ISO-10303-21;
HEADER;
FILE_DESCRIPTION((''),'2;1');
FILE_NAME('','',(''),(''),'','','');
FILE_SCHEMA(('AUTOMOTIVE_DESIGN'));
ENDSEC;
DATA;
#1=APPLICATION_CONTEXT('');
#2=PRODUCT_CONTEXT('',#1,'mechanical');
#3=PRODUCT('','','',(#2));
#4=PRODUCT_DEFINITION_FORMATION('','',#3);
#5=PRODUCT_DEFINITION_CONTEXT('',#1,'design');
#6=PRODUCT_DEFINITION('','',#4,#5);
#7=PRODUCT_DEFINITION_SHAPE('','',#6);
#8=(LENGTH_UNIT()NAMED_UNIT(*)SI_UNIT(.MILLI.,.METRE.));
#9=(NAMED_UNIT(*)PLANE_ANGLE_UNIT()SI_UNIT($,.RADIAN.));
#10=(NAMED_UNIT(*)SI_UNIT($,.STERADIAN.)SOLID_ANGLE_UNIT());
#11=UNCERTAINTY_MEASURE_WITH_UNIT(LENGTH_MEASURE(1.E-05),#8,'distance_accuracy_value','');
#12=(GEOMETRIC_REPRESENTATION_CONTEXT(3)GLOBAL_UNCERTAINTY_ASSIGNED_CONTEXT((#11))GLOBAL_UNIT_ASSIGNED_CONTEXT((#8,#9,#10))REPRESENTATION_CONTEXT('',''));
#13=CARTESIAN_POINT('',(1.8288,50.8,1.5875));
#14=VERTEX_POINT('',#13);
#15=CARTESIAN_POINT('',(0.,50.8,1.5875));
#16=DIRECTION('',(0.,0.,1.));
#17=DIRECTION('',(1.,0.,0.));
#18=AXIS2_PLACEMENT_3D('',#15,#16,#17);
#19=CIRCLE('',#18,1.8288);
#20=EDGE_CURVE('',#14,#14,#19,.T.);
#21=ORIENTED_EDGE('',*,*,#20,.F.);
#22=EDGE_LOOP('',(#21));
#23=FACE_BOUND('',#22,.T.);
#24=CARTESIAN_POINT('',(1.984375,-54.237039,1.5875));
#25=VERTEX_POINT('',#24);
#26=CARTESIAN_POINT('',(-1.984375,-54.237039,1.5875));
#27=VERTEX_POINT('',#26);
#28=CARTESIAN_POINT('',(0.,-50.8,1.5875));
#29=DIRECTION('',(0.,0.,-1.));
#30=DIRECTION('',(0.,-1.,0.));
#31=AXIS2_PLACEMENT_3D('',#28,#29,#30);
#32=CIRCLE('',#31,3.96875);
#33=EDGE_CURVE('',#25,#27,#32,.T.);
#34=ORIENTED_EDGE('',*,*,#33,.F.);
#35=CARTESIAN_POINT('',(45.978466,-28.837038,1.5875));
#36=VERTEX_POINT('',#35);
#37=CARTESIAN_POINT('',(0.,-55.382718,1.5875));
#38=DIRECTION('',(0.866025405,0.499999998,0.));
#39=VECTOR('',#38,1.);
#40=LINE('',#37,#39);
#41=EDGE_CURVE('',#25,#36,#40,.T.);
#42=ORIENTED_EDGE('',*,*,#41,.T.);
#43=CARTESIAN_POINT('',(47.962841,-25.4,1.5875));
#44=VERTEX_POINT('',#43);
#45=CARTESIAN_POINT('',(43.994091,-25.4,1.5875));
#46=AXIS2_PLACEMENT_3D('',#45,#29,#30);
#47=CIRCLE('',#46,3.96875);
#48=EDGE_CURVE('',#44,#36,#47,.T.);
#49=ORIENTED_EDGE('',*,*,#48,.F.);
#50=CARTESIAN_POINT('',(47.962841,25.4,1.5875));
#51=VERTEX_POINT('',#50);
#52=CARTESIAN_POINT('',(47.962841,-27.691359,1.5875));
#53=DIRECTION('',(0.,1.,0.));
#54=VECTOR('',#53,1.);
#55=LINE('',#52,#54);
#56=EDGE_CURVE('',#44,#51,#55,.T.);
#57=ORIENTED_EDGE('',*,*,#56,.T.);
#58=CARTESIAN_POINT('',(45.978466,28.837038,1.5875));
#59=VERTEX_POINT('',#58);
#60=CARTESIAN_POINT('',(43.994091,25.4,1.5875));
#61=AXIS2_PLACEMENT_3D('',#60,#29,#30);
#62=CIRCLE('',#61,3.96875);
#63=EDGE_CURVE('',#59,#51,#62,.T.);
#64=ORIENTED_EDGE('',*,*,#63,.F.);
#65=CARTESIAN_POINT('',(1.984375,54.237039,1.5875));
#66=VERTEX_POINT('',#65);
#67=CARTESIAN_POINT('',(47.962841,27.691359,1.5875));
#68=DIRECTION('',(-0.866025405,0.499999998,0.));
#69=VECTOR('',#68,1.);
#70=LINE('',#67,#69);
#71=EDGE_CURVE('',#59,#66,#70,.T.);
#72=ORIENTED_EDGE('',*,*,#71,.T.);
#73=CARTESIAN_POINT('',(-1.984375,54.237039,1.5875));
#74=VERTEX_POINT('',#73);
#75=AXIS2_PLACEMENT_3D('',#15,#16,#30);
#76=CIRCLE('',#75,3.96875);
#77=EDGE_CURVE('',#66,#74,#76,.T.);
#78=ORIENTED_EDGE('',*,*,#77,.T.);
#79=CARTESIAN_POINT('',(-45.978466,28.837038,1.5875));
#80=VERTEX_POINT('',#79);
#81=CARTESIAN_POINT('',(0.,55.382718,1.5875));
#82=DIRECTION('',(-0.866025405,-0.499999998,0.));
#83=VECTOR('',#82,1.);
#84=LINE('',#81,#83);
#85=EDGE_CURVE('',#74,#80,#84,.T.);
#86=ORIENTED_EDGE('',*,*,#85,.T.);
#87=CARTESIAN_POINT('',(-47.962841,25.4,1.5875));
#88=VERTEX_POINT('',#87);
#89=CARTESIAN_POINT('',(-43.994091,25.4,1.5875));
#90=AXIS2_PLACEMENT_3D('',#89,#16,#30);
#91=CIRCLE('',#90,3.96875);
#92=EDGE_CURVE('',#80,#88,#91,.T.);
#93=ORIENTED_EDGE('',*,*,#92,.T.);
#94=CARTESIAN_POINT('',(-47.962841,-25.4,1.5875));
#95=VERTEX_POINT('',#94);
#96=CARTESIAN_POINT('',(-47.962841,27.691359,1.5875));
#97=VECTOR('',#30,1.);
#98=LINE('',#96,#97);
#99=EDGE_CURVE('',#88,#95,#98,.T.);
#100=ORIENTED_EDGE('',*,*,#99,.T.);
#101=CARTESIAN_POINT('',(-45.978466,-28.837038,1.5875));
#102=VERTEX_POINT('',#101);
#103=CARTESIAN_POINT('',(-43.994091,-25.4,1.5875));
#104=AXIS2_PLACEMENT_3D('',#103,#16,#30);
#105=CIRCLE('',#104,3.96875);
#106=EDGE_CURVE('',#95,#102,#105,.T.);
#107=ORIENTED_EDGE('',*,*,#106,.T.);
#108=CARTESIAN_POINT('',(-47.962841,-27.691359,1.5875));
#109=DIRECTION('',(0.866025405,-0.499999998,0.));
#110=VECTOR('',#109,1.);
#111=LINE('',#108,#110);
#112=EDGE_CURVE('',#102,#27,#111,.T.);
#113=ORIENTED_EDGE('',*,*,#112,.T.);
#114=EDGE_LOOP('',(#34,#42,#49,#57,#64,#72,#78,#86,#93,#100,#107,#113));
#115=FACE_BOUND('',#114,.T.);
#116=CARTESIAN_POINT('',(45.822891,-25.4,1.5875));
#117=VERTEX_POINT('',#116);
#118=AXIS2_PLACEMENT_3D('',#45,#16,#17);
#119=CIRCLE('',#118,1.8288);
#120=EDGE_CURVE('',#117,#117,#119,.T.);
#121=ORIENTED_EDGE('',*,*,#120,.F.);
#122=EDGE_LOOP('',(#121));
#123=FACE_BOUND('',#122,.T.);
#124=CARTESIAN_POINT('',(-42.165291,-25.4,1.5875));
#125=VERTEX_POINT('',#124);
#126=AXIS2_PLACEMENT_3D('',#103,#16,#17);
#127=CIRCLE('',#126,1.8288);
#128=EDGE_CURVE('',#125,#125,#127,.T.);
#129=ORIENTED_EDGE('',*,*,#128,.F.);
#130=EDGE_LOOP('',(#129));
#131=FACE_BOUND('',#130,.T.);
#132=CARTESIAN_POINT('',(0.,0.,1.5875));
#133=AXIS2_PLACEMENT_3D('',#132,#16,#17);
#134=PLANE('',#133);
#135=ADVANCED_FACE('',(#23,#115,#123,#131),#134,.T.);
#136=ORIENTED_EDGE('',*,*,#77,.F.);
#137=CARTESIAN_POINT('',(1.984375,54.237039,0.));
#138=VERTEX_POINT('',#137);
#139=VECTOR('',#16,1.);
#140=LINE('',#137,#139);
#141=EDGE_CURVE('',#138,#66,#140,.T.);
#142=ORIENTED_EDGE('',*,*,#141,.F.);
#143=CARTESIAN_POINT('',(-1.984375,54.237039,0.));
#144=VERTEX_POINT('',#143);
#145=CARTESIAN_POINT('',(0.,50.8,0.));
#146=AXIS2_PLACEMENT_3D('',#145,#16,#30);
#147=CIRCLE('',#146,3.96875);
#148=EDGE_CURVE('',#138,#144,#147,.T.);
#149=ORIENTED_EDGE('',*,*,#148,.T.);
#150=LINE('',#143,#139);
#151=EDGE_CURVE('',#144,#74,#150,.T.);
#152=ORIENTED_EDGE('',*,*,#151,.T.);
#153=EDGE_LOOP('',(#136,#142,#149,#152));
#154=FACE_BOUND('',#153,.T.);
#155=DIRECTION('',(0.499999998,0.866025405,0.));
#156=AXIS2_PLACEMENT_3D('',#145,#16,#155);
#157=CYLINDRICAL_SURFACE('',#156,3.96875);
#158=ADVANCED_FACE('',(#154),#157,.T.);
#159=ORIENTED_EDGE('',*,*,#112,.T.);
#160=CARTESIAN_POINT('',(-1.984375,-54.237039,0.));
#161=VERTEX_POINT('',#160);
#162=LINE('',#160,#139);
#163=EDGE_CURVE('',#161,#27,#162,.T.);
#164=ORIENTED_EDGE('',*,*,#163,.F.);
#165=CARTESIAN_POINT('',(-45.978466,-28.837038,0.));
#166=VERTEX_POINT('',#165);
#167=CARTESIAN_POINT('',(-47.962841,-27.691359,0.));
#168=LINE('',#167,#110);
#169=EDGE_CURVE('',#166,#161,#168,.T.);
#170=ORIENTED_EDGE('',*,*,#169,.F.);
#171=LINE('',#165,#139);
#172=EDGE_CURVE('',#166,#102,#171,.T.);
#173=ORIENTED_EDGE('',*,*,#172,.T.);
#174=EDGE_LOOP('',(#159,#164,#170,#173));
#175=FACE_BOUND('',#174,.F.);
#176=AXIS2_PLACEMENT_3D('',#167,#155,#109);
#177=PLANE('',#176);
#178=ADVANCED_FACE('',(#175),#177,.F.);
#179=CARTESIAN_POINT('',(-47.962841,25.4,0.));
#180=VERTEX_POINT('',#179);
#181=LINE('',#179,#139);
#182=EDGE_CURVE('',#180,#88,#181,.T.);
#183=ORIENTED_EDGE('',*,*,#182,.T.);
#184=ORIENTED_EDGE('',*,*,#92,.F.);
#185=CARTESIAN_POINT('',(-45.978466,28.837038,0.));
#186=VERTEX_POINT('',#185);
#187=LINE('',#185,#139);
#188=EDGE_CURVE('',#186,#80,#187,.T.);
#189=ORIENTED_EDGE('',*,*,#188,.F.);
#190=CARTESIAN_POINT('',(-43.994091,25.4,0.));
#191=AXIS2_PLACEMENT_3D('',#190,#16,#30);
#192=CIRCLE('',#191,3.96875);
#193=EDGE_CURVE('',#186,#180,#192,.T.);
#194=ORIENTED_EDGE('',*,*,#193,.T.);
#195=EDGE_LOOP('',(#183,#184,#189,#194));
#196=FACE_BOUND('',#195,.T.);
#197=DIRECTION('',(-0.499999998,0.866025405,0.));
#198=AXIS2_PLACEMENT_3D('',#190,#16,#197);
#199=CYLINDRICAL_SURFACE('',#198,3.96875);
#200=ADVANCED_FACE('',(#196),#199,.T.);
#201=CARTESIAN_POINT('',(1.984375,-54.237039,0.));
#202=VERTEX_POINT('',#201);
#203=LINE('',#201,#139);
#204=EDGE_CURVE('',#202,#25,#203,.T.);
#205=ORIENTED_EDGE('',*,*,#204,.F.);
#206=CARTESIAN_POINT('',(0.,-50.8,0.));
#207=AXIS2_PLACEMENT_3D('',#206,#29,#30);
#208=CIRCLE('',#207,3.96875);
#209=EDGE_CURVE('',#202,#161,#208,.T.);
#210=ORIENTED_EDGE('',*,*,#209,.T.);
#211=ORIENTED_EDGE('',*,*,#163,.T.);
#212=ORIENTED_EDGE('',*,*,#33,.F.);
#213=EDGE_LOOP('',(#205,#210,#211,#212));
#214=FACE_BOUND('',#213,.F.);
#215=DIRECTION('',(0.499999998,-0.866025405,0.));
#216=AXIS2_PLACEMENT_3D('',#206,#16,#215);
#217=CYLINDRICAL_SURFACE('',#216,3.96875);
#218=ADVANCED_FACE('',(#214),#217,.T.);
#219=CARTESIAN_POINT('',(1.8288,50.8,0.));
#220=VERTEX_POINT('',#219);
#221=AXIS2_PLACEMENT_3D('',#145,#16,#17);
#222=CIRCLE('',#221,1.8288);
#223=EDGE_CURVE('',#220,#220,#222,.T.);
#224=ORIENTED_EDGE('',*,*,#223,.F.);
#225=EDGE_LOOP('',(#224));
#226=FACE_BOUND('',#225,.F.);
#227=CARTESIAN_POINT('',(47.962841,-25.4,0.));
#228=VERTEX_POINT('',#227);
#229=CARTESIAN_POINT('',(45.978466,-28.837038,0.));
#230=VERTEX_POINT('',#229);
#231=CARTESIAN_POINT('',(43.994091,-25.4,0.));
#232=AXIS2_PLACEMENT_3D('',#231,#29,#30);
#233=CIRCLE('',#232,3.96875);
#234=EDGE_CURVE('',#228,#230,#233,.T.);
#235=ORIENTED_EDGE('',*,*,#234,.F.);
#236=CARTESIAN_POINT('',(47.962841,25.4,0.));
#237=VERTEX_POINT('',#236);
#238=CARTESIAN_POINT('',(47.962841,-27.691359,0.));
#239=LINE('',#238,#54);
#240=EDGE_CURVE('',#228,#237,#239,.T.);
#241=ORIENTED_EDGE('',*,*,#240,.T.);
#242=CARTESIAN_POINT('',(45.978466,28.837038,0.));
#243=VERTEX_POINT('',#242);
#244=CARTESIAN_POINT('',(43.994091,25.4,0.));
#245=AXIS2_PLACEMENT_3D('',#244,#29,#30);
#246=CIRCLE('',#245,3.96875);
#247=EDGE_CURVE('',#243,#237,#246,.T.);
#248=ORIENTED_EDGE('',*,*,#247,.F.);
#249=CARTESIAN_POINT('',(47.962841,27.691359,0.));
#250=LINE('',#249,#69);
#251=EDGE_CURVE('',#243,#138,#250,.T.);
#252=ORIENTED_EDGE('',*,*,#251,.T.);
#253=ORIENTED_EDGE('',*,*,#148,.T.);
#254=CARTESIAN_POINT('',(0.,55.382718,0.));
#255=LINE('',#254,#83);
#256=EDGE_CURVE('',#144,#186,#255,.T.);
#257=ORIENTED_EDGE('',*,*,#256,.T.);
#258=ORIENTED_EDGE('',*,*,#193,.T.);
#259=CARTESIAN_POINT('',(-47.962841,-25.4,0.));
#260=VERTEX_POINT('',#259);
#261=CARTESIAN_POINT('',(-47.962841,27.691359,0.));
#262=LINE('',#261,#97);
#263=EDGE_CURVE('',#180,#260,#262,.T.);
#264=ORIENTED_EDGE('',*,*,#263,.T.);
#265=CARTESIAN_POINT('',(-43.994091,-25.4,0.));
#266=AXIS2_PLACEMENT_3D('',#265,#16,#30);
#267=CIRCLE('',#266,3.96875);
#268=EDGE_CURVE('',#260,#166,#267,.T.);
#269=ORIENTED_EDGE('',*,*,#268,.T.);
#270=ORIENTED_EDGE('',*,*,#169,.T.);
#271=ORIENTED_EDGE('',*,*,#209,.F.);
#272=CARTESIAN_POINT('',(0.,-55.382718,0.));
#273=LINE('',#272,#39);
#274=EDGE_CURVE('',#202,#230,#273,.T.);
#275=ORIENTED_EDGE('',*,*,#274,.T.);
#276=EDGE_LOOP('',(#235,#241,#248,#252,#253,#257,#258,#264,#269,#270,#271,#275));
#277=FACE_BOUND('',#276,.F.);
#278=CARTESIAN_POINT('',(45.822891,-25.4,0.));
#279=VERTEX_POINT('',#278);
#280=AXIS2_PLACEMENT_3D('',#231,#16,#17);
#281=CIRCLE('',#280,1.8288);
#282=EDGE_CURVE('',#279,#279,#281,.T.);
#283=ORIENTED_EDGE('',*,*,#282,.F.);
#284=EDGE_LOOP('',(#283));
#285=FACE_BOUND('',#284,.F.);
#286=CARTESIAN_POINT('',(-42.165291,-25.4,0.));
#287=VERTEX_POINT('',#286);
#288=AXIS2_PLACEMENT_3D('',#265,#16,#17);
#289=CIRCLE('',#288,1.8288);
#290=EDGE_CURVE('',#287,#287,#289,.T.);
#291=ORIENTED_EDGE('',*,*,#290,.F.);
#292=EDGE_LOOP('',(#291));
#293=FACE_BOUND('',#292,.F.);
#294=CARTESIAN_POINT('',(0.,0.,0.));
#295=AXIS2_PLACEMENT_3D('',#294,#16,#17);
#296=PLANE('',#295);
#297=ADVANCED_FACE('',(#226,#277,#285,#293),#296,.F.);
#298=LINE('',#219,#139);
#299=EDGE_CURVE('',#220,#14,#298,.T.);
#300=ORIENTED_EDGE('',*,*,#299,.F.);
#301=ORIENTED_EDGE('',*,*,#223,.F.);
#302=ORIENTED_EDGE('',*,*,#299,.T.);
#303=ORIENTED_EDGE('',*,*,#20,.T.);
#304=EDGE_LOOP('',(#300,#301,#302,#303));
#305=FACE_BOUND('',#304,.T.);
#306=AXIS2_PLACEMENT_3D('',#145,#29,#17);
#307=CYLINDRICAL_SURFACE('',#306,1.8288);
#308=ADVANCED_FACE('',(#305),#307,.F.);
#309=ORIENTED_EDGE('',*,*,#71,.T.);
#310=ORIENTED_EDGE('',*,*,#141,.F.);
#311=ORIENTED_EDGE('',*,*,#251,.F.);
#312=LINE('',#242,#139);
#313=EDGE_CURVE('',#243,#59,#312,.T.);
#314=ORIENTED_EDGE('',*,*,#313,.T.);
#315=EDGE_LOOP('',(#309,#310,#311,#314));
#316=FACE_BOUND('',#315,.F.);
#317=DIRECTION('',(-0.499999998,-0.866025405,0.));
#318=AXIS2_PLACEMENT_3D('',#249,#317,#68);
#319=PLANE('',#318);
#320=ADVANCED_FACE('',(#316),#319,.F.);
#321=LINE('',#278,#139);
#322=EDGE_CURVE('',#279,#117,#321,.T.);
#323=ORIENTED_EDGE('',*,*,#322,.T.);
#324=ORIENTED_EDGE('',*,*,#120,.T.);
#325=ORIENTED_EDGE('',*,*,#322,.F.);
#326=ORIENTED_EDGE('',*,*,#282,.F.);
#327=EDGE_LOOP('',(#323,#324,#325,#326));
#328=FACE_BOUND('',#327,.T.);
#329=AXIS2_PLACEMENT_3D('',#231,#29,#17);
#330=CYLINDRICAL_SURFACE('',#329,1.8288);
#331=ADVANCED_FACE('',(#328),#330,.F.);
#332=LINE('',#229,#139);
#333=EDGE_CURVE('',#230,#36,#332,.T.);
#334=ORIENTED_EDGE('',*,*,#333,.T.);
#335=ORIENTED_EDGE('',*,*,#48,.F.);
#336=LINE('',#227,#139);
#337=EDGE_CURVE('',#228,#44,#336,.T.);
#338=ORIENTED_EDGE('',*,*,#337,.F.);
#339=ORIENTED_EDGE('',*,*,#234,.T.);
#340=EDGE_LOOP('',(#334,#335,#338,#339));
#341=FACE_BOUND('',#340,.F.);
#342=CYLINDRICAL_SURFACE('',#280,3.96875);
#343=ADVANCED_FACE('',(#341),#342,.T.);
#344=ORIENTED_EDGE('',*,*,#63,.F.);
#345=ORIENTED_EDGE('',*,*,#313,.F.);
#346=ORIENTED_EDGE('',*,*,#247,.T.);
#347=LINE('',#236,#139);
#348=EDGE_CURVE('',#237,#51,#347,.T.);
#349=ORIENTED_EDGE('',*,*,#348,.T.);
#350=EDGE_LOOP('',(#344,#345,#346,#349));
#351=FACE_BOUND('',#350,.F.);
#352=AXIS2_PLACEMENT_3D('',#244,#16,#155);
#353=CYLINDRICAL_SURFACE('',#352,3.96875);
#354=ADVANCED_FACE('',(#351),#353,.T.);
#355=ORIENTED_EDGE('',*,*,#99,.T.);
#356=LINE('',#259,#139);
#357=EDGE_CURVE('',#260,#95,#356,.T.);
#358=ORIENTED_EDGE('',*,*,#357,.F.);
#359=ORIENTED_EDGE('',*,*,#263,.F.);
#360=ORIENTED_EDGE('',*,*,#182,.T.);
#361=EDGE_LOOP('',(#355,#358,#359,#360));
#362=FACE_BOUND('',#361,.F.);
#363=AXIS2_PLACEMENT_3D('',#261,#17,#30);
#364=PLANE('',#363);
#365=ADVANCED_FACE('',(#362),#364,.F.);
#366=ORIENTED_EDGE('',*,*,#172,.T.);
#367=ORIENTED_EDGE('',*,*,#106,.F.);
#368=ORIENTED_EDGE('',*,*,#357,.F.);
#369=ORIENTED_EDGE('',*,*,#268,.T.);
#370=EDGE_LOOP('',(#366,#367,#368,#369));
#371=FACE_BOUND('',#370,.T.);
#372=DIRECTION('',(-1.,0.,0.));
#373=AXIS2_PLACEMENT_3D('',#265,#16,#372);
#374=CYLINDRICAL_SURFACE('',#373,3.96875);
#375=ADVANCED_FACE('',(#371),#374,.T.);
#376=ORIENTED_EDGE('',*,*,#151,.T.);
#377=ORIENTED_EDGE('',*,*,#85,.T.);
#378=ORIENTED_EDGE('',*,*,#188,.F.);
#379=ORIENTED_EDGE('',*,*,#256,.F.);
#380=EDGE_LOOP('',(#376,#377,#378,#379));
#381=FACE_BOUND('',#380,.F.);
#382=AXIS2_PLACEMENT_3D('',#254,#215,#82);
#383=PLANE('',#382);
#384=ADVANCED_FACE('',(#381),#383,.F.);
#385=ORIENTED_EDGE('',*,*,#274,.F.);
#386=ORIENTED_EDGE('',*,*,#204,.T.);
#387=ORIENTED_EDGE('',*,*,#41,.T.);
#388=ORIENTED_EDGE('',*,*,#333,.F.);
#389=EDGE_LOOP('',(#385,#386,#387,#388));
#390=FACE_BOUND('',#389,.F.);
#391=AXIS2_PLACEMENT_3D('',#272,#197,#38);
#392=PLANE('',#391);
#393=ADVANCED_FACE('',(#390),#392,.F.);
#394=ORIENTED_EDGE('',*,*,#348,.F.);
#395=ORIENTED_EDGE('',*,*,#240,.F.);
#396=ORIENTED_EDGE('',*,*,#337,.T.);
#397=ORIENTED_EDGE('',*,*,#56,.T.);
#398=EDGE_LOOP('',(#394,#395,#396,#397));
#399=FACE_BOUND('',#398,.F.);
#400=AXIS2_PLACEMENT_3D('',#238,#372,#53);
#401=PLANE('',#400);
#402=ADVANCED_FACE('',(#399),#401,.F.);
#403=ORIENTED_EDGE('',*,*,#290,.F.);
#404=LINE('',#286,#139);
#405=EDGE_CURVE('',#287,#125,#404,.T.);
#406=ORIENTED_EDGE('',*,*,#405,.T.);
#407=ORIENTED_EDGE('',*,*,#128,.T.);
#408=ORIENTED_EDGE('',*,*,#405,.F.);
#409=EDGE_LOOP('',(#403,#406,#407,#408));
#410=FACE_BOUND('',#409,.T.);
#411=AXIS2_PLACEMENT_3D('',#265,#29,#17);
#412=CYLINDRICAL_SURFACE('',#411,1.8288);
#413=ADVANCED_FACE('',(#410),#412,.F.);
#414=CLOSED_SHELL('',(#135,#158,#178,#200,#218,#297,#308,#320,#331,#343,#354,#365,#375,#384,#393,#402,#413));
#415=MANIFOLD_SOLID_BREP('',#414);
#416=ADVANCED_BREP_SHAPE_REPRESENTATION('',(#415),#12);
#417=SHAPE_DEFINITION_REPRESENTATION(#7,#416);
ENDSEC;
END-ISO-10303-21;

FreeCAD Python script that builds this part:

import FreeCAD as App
import Part
import Sketcher
Q = App.Units.Quantity


def edges_at(feature, points):
    """Names of the edges that pass closest to the given points."""
    edges = feature.Shape.Edges
    near = lambda p: min(range(len(edges)), key=lambda i: edges[i].distToShape(Part.Vertex(*p))[0])
    return sorted({f"Edge{near(p) + 1}" for p in points})

doc = App.newDocument("Part")
params = doc.addObject("Spreadsheet::Sheet", "Params")
for row, (alias, value) in enumerate([
    ("sketch1_diameter", "0.144 in"),
    ("pad1_length", "0.0625 in"),
    ("fillet_radius", "0.15625 in"),
], start=1):
    params.set(f"A{row}", alias)
    params.set(f"B{row}", "=" + value)
    params.setAlias(f"B{row}", alias)

body = doc.addObject("PartDesign::Body", "Body")

# Sketch on XY plane
sketch1 = doc.addObject("Sketcher::SketchObject", "Sketch")
body.addObject(sketch1)
sketch1.AttachmentSupport = (doc.XY_Plane, [""])
sketch1.MapMode = "FlatFace"
sketch1.addGeometry([
    Part.LineSegment(App.Vector(48, 27.7, 0), App.Vector(0, 55.4, 0)),  # 0
    Part.LineSegment(App.Vector(0, 55.4, 0), App.Vector(-48, 27.7, 0)),  # 1
    Part.LineSegment(App.Vector(-48, 27.7, 0), App.Vector(-48, -27.7, 0)),  # 2
    Part.LineSegment(App.Vector(-48, -27.7, 0), App.Vector(0, -55.4, 0)),  # 3
    Part.LineSegment(App.Vector(0, -55.4, 0), App.Vector(48, -27.7, 0)),  # 4
    Part.LineSegment(App.Vector(48, -27.7, 0), App.Vector(48, 27.7, 0)),  # 5
    Part.Circle(App.Vector(-44, -25.4, 0), App.Vector(0, 0, 1), 1.8),  # 6
    Part.Circle(App.Vector(44, -25.4, 0), App.Vector(0, 0, 1), 1.8),  # 7
    Part.Circle(App.Vector(0, 50.8, 0), App.Vector(0, 0, 1), 1.8),  # 8
], False)
sketch1.addConstraint([
    Sketcher.Constraint("Coincident", 0, 2, 1, 1),
    Sketcher.Constraint("Coincident", 1, 2, 2, 1),
    Sketcher.Constraint("Coincident", 2, 2, 3, 1),
    Sketcher.Constraint("Coincident", 3, 2, 4, 1),
    Sketcher.Constraint("Coincident", 4, 2, 5, 1),
    Sketcher.Constraint("Coincident", 5, 2, 0, 1),
    Sketcher.Constraint("Vertical", 2),
    Sketcher.Constraint("Vertical", 5),
    Sketcher.Constraint("Equal", 6, 7),
    Sketcher.Constraint("Equal", 7, 8),
    Sketcher.Constraint("Symmetric", 0, 2, 3, 2, -1, 1),
    Sketcher.Constraint("Symmetric", 1, 2, 4, 2, -1, 1),
    Sketcher.Constraint("Symmetric", 6, 3, 7, 3, -2),
    Sketcher.Constraint("PointOnObject", 8, 3, -2),
    Sketcher.Constraint("PointOnObject", 0, 2, -2),
    Sketcher.Constraint("Parallel", 0, 3),
    Sketcher.Constraint("Horizontal", 2, 2, 4, 2),
    Sketcher.Constraint("Diameter", 6, Q("0.144 in")),
    Sketcher.Constraint("DistanceY", 6, 3, -1, 1, Q("1 in")),
    Sketcher.Constraint("DistanceY", -1, 1, 8, 3, Q("2 in")),
    Sketcher.Constraint("Angle", 0, Q("150 deg")),
    Sketcher.Constraint("DistanceX", 1, 2, 6, 3, Q("0.15625 in")),
    Sketcher.Constraint("Distance", 0, Q("55.382718 mm")),
    Sketcher.Constraint("DistanceY", 2, 2, 2, 1, Q("55.382718 mm")),
])
sketch1.setExpression("Constraints[17]", "Params.sketch1_diameter")
pad1 = doc.addObject("PartDesign::Pad", "Pad")
body.addObject(pad1)
pad1.Profile = sketch1
pad1.setExpression("Length", "Params.pad1_length")
doc.recompute()

fillet = doc.addObject("PartDesign::Fillet", "Fillet")
body.addObject(fillet)
fillet.Base = (pad1, edges_at(pad1, [
    (-47.963, -27.691, 0.794),
    (0, -55.383, 0.794),
    (47.963, -27.691, 0.794),
    (47.963, 27.691, 0.794),
    (0, 55.383, 0.794),
    (-47.963, 27.691, 0.794),
]))
fillet.setExpression("Radius", "Params.fillet_radius")

doc.recompute()
